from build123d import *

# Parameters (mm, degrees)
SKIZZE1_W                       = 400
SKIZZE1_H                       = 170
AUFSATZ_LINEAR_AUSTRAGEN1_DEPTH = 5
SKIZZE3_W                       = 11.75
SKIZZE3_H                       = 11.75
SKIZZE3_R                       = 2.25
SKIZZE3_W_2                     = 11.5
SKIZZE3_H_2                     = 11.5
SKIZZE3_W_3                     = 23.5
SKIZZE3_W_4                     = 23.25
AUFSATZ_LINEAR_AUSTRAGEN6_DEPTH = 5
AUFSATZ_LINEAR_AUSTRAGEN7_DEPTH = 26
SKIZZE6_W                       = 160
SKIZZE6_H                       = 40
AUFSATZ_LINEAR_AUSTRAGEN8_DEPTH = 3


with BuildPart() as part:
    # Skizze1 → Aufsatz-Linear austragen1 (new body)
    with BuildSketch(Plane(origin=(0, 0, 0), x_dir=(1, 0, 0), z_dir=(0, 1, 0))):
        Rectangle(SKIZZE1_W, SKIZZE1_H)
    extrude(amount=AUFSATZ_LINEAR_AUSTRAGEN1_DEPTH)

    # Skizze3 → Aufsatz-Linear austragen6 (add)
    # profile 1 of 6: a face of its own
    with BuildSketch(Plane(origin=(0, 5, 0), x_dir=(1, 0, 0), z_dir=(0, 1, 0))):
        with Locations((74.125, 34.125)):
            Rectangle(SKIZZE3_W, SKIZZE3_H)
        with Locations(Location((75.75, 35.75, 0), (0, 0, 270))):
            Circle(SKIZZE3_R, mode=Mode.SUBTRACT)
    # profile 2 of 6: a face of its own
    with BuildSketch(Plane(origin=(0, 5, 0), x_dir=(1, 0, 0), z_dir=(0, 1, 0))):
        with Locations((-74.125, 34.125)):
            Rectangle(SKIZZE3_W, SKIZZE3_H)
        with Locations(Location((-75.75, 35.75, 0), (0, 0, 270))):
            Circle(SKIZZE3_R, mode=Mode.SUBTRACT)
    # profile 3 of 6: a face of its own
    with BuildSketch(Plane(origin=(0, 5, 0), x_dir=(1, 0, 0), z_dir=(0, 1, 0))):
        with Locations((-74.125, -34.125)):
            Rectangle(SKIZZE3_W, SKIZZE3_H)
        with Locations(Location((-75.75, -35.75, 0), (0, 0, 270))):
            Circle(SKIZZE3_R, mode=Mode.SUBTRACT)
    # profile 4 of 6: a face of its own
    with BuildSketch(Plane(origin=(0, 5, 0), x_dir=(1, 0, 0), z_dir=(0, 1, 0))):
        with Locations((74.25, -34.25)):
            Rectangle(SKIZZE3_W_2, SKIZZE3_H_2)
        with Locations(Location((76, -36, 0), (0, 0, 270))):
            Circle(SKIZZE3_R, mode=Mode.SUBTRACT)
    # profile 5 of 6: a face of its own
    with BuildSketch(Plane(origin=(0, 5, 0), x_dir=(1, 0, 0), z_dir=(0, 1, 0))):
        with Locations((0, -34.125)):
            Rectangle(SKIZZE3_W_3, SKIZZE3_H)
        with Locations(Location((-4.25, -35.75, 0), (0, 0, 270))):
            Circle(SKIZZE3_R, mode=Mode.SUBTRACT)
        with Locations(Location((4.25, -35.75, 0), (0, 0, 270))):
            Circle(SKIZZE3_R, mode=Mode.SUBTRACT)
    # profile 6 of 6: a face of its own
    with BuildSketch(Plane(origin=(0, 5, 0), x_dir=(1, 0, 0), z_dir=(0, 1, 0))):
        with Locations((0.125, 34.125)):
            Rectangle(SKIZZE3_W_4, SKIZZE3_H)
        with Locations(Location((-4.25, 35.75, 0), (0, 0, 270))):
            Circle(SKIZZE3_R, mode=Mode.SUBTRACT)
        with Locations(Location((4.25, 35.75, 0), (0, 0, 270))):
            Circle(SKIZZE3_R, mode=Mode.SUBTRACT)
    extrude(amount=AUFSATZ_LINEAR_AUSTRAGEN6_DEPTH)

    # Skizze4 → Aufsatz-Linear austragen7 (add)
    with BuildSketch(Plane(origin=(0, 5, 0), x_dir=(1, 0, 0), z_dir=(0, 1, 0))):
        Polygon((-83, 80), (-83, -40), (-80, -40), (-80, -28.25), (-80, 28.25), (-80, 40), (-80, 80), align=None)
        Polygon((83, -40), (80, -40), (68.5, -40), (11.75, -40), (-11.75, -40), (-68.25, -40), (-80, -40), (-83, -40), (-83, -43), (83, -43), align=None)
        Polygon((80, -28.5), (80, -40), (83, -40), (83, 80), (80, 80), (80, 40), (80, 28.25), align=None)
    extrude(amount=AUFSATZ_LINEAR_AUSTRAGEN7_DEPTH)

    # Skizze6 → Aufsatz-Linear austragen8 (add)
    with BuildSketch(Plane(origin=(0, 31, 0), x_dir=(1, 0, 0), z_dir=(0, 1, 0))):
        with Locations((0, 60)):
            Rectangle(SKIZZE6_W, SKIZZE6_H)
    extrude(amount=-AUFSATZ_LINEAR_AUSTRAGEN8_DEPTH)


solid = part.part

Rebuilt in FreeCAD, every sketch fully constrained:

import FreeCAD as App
import Part
import Sketcher

V = App.Vector


def add_polygon(sketch, points):
    """Adds a closed chain of lines whose ends are joined by coincident constraints."""
    first, n = sketch.GeometryCount, len(points)
    for a, b in zip(points, points[1:] + points[:1]):
        sketch.addGeometry(Part.LineSegment(App.Vector(*a, 0), App.Vector(*b, 0)), False)
    for i in range(n):
        sketch.addConstraint(Sketcher.Constraint("Coincident", first + i, 2, first + (i + 1) % n, 1))

doc = App.newDocument("Part")
body = doc.addObject("PartDesign::Body", "Body")

# Sketch on XZ plane
sketch1 = body.newObject("Sketcher::SketchObject", "Sketch")
sketch1.AttachmentSupport = (doc.getObject("XZ_Plane"), [""])
sketch1.MapMode = "FlatFace"
add_polygon(sketch1, [(-200, -85), (-200, 85), (200, 85), (200, -85)])  # lines 0-3
sketch1.addConstraint([
    Sketcher.Constraint("Vertical", 0),
    Sketcher.Constraint("Horizontal", 1),
    Sketcher.Constraint("Vertical", 2),
    Sketcher.Constraint("Horizontal", 3),
    Sketcher.Constraint("Symmetric", 0, 2, 2, 2, -1, 1),
    Sketcher.Constraint("DistanceX", 1, 1, 1, 2, 400.0),
    Sketcher.Constraint("DistanceY", 0, 1, 0, 2, 170.0),
])
pad1 = body.newObject("PartDesign::Pad", "Pad")
pad1.Profile = sketch1
pad1.Length = 5
pad1.Reversed = True

# Sketch on XZ plane
sketch2 = body.newObject("Sketcher::SketchObject", "Sketch001")
sketch2.AttachmentSupport = (doc.getObject("XZ_Plane"), [""])
sketch2.MapMode = "FlatFace"
sketch2.AttachmentOffset = App.Placement(V(0, 0, -5), App.Rotation())
add_polygon(sketch2, [(68.2, -40), (68.2, -28.2), (80, -28.2), (80, -40)])  # lines 0-3
sketch2.addGeometry(Part.Circle(V(75.8, -35.8, 0), V(0, 0, 1), 2.2), False)  # 4
add_polygon(sketch2, [(-80, -40), (-80, -28.2), (-68.2, -28.2), (-68.2, -40)])  # lines 5-8
sketch2.addGeometry(Part.Circle(V(-75.8, -35.8, 0), V(0, 0, 1), 2.2), False)  # 9
add_polygon(sketch2, [(-80, 28.2), (-80, 40), (-68.2, 40), (-68.2, 28.2)])  # lines 10-13
sketch2.addGeometry(Part.Circle(V(-75.8, 35.8, 0), V(0, 0, 1), 2.2), False)  # 14
add_polygon(sketch2, [(68.5, 28.5), (68.5, 40), (80, 40), (80, 28.5)])  # lines 15-18
sketch2.addGeometry(Part.Circle(V(76, 36, 0), V(0, 0, 1), 2.2), False)  # 19
add_polygon(sketch2, [(-11.8, 28.2), (-11.8, 40), (11.8, 40), (11.8, 28.2)])  # lines 20-23
sketch2.addGeometry(Part.Circle(V(-4.2, 35.8, 0), V(0, 0, 1), 2.2), False)  # 24
sketch2.addGeometry(Part.Circle(V(4.2, 35.8, 0), V(0, 0, 1), 2.2), False)  # 25
add_polygon(sketch2, [(-11.5, -40), (-11.5, -28.2), (11.8, -28.2), (11.8, -40)])  # lines 26-29
sketch2.addGeometry(Part.Circle(V(-4.2, -35.8, 0), V(0, 0, 1), 2.2), False)  # 30
sketch2.addGeometry(Part.Circle(V(4.2, -35.8, 0), V(0, 0, 1), 2.2), False)  # 31
sketch2.addConstraint([
    Sketcher.Constraint("Vertical", 0),
    Sketcher.Constraint("Horizontal", 1),
    Sketcher.Constraint("Vertical", 2),
    Sketcher.Constraint("Horizontal", 3),
    Sketcher.Constraint("Vertical", 5),
    Sketcher.Constraint("Horizontal", 6),
    Sketcher.Constraint("Vertical", 7),
    Sketcher.Constraint("Horizontal", 8),
    Sketcher.Constraint("Vertical", 10),
    Sketcher.Constraint("Horizontal", 11),
    Sketcher.Constraint("Vertical", 12),
    Sketcher.Constraint("Horizontal", 13),
    Sketcher.Constraint("Vertical", 15),
    Sketcher.Constraint("Horizontal", 16),
    Sketcher.Constraint("Vertical", 17),
    Sketcher.Constraint("Horizontal", 18),
    Sketcher.Constraint("Vertical", 20),
    Sketcher.Constraint("Horizontal", 21),
    Sketcher.Constraint("Vertical", 22),
    Sketcher.Constraint("Horizontal", 23),
    Sketcher.Constraint("Vertical", 26),
    Sketcher.Constraint("Horizontal", 27),
    Sketcher.Constraint("Vertical", 28),
    Sketcher.Constraint("Horizontal", 29),
    Sketcher.Constraint("Equal", 4, 9),
    Sketcher.Constraint("Equal", 9, 14),
    Sketcher.Constraint("Equal", 14, 19),
    Sketcher.Constraint("Equal", 19, 24),
    Sketcher.Constraint("Equal", 24, 25),
    Sketcher.Constraint("Equal", 25, 30),
    Sketcher.Constraint("Equal", 30, 31),
    Sketcher.Constraint("Symmetric", 4, 3, 14, 3, -1, 1),
    Sketcher.Constraint("Symmetric", 25, 3, 30, 3, -1, 1),
    Sketcher.Constraint("Symmetric", 24, 3, 31, 3, -1, 1),
    Sketcher.Constraint("Symmetric", 2, 2, 10, 2, -1, 1),
    Sketcher.Constraint("Symmetric", 0, 2, 12, 2, -1, 1),
    Sketcher.Constraint("Symmetric", 8, 2, 16, 2, -1, 1),
    Sketcher.Constraint("Symmetric", 23, 2, 27, 2, -1, 1),
    Sketcher.Constraint("Symmetric", 4, 3, 9, 3, -2),
    Sketcher.Constraint("Symmetric", 24, 3, 25, 3, -2),
    Sketcher.Constraint("Symmetric", 1, 2, 5, 2, -2),
    Sketcher.Constraint("Symmetric", 3, 2, 7, 2, -2),
    Sketcher.Constraint("Symmetric", 21, 2, 28, 2, -1),
    Sketcher.Constraint("Horizontal", 14, 3, 24, 3),
    Sketcher.Constraint("Horizontal", 16, 2, 20, 2),
    Sketcher.Constraint("Horizontal", 13, 2, 22, 2),
    Sketcher.Constraint("Equal", 13, 0),
    Sketcher.Constraint("Equal", 18, 15),
    Sketcher.Constraint("Diameter", 4, 4.5),
    Sketcher.Constraint("DistanceX", 16, 1, 16, 2, 11.5),
    Sketcher.Constraint("DistanceX", 21, 1, 21, 2, 23.5),
    Sketcher.Constraint("DistanceX", -1, 1, 19, 3, 76.0),
    Sketcher.Constraint("DistanceY", -1, 1, 19, 3, 36.0),
    Sketcher.Constraint("DistanceX", -1, 1, 1, 2, 80.0),
    Sketcher.Constraint("DistanceY", 2, 2, -1, 1, 40.0),
    Sketcher.Constraint("DistanceX", 24, 3, 4, 3, 80.0),
    Sketcher.Constraint("DistanceX", 31, 3, 0, 2, 64.0),
    Sketcher.Constraint("DistanceY", 0, 2, 25, 3, 64.0),
    Sketcher.Constraint("DistanceX", 20, 2, 25, 3, 16.0),
    Sketcher.Constraint("DistanceX", 27, 1, 27, 2, 23.25),
])
pad2 = body.newObject("PartDesign::Pad", "Pad001")
pad2.Profile = sketch2
pad2.Length = 5
pad2.Reversed = True

# Sketch on XZ plane
sketch3 = body.newObject("Sketcher::SketchObject", "Sketch002")
sketch3.AttachmentSupport = (doc.getObject("XZ_Plane"), [""])
sketch3.MapMode = "FlatFace"
sketch3.AttachmentOffset = App.Placement(V(0, 0, -5), App.Rotation())
add_polygon(sketch3, [(-83, -80), (-83, 43), (83, 43), (83, -80), (80, -80), (80, 40), (-80, 40), (-80, -80)])  # lines 0-7
sketch3.addConstraint([
    Sketcher.Constraint("Vertical", 0),
    Sketcher.Constraint("Horizontal", 1),
    Sketcher.Constraint("Vertical", 2),
    Sketcher.Constraint("Horizontal", 3),
    Sketcher.Constraint("Vertical", 4),
    Sketcher.Constraint("Horizontal", 5),
    Sketcher.Constraint("Vertical", 6),
    Sketcher.Constraint("Horizontal", 7),
    Sketcher.Constraint("Symmetric", 3, 2, 6, 2, -2),
    Sketcher.Constraint("Equal", 3, 7),
    Sketcher.Constraint("DistanceX", 1, 1, 1, 2, 166.0),
    Sketcher.Constraint("DistanceX", 3, 2, 3, 1, 3.0),
    Sketcher.Constraint("DistanceY", 0, 1, 0, 2, 123.0),
    Sketcher.Constraint("DistanceY", 4, 1, 4, 2, 120.0),
    Sketcher.Constraint("DistanceY", -1, 1, 0, 2, 43.0),
])
pad3 = body.newObject("PartDesign::Pad", "Pad002")
pad3.Profile = sketch3
pad3.Length = 26
pad3.Reversed = True

# Sketch on XZ plane
sketch4 = body.newObject("Sketcher::SketchObject", "Sketch003")
sketch4.AttachmentSupport = (doc.getObject("XZ_Plane"), [""])
sketch4.MapMode = "FlatFace"
sketch4.AttachmentOffset = App.Placement(V(0, 0, -31), App.Rotation())
add_polygon(sketch4, [(-80, -80), (-80, -40), (80, -40), (80, -80)])  # lines 0-3
sketch4.addConstraint([
    Sketcher.Constraint("Vertical", 0),
    Sketcher.Constraint("Horizontal", 1),
    Sketcher.Constraint("Vertical", 2),
    Sketcher.Constraint("Horizontal", 3),
    Sketcher.Constraint("DistanceX", 1, 1, 1, 2, 160.0),
    Sketcher.Constraint("DistanceY", 0, 1, 0, 2, 40.0),
    Sketcher.Constraint("DistanceX", 0, 2, -1, 1, 80.0),
    Sketcher.Constraint("DistanceY", 0, 2, -1, 1, 40.0),
])
pad4 = body.newObject("PartDesign::Pad", "Pad003")
pad4.Profile = sketch4
pad4.Length = 3

doc.recompute()
